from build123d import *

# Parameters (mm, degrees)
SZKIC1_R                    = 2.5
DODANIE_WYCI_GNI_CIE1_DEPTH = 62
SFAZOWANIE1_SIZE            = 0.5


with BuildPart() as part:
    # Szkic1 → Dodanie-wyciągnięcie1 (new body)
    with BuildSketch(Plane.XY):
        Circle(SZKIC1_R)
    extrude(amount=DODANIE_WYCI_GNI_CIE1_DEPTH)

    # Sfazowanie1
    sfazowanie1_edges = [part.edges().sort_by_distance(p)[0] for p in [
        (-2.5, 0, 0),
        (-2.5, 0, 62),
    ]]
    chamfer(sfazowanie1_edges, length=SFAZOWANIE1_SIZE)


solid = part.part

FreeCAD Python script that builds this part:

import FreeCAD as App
import Part
import Sketcher

V = App.Vector


def edges_at(feature, points):
    """Names of the edges that pass closest to the given points."""
    edges = feature.Shape.Edges
    near = lambda p: min(range(len(edges)), key=lambda i: edges[i].distToShape(Part.Vertex(*p))[0])
    return sorted({f"Edge{near(p) + 1}" for p in points})

doc = App.newDocument("Part")
body = doc.addObject("PartDesign::Body", "Body")

sketch1 = body.newObject("Sketcher::SketchObject", "Sketch")
sketch1.AttachmentSupport = (doc.getObject("XY_Plane"), [""])
sketch1.MapMode = "FlatFace"
sketch1.addGeometry(Part.Circle(V(0, 0, 0), V(0, 0, 1), 2.5), False)
sketch1.addConstraint(Sketcher.Constraint("Coincident", 0, 3, -1, 1))
sketch1.addConstraint(Sketcher.Constraint("Diameter", 0, 5.0))
pad1 = body.newObject("PartDesign::Pad", "Pad")
pad1.Profile = sketch1
pad1.Length = 62
doc.recompute()

chamfer = body.newObject("PartDesign::Chamfer", "Chamfer")
chamfer.Base = (pad1, edges_at(pad1, [(-2.5, 0, 0), (-2.5, 0, 62)]))
chamfer.Size = 0.5

doc.recompute()
